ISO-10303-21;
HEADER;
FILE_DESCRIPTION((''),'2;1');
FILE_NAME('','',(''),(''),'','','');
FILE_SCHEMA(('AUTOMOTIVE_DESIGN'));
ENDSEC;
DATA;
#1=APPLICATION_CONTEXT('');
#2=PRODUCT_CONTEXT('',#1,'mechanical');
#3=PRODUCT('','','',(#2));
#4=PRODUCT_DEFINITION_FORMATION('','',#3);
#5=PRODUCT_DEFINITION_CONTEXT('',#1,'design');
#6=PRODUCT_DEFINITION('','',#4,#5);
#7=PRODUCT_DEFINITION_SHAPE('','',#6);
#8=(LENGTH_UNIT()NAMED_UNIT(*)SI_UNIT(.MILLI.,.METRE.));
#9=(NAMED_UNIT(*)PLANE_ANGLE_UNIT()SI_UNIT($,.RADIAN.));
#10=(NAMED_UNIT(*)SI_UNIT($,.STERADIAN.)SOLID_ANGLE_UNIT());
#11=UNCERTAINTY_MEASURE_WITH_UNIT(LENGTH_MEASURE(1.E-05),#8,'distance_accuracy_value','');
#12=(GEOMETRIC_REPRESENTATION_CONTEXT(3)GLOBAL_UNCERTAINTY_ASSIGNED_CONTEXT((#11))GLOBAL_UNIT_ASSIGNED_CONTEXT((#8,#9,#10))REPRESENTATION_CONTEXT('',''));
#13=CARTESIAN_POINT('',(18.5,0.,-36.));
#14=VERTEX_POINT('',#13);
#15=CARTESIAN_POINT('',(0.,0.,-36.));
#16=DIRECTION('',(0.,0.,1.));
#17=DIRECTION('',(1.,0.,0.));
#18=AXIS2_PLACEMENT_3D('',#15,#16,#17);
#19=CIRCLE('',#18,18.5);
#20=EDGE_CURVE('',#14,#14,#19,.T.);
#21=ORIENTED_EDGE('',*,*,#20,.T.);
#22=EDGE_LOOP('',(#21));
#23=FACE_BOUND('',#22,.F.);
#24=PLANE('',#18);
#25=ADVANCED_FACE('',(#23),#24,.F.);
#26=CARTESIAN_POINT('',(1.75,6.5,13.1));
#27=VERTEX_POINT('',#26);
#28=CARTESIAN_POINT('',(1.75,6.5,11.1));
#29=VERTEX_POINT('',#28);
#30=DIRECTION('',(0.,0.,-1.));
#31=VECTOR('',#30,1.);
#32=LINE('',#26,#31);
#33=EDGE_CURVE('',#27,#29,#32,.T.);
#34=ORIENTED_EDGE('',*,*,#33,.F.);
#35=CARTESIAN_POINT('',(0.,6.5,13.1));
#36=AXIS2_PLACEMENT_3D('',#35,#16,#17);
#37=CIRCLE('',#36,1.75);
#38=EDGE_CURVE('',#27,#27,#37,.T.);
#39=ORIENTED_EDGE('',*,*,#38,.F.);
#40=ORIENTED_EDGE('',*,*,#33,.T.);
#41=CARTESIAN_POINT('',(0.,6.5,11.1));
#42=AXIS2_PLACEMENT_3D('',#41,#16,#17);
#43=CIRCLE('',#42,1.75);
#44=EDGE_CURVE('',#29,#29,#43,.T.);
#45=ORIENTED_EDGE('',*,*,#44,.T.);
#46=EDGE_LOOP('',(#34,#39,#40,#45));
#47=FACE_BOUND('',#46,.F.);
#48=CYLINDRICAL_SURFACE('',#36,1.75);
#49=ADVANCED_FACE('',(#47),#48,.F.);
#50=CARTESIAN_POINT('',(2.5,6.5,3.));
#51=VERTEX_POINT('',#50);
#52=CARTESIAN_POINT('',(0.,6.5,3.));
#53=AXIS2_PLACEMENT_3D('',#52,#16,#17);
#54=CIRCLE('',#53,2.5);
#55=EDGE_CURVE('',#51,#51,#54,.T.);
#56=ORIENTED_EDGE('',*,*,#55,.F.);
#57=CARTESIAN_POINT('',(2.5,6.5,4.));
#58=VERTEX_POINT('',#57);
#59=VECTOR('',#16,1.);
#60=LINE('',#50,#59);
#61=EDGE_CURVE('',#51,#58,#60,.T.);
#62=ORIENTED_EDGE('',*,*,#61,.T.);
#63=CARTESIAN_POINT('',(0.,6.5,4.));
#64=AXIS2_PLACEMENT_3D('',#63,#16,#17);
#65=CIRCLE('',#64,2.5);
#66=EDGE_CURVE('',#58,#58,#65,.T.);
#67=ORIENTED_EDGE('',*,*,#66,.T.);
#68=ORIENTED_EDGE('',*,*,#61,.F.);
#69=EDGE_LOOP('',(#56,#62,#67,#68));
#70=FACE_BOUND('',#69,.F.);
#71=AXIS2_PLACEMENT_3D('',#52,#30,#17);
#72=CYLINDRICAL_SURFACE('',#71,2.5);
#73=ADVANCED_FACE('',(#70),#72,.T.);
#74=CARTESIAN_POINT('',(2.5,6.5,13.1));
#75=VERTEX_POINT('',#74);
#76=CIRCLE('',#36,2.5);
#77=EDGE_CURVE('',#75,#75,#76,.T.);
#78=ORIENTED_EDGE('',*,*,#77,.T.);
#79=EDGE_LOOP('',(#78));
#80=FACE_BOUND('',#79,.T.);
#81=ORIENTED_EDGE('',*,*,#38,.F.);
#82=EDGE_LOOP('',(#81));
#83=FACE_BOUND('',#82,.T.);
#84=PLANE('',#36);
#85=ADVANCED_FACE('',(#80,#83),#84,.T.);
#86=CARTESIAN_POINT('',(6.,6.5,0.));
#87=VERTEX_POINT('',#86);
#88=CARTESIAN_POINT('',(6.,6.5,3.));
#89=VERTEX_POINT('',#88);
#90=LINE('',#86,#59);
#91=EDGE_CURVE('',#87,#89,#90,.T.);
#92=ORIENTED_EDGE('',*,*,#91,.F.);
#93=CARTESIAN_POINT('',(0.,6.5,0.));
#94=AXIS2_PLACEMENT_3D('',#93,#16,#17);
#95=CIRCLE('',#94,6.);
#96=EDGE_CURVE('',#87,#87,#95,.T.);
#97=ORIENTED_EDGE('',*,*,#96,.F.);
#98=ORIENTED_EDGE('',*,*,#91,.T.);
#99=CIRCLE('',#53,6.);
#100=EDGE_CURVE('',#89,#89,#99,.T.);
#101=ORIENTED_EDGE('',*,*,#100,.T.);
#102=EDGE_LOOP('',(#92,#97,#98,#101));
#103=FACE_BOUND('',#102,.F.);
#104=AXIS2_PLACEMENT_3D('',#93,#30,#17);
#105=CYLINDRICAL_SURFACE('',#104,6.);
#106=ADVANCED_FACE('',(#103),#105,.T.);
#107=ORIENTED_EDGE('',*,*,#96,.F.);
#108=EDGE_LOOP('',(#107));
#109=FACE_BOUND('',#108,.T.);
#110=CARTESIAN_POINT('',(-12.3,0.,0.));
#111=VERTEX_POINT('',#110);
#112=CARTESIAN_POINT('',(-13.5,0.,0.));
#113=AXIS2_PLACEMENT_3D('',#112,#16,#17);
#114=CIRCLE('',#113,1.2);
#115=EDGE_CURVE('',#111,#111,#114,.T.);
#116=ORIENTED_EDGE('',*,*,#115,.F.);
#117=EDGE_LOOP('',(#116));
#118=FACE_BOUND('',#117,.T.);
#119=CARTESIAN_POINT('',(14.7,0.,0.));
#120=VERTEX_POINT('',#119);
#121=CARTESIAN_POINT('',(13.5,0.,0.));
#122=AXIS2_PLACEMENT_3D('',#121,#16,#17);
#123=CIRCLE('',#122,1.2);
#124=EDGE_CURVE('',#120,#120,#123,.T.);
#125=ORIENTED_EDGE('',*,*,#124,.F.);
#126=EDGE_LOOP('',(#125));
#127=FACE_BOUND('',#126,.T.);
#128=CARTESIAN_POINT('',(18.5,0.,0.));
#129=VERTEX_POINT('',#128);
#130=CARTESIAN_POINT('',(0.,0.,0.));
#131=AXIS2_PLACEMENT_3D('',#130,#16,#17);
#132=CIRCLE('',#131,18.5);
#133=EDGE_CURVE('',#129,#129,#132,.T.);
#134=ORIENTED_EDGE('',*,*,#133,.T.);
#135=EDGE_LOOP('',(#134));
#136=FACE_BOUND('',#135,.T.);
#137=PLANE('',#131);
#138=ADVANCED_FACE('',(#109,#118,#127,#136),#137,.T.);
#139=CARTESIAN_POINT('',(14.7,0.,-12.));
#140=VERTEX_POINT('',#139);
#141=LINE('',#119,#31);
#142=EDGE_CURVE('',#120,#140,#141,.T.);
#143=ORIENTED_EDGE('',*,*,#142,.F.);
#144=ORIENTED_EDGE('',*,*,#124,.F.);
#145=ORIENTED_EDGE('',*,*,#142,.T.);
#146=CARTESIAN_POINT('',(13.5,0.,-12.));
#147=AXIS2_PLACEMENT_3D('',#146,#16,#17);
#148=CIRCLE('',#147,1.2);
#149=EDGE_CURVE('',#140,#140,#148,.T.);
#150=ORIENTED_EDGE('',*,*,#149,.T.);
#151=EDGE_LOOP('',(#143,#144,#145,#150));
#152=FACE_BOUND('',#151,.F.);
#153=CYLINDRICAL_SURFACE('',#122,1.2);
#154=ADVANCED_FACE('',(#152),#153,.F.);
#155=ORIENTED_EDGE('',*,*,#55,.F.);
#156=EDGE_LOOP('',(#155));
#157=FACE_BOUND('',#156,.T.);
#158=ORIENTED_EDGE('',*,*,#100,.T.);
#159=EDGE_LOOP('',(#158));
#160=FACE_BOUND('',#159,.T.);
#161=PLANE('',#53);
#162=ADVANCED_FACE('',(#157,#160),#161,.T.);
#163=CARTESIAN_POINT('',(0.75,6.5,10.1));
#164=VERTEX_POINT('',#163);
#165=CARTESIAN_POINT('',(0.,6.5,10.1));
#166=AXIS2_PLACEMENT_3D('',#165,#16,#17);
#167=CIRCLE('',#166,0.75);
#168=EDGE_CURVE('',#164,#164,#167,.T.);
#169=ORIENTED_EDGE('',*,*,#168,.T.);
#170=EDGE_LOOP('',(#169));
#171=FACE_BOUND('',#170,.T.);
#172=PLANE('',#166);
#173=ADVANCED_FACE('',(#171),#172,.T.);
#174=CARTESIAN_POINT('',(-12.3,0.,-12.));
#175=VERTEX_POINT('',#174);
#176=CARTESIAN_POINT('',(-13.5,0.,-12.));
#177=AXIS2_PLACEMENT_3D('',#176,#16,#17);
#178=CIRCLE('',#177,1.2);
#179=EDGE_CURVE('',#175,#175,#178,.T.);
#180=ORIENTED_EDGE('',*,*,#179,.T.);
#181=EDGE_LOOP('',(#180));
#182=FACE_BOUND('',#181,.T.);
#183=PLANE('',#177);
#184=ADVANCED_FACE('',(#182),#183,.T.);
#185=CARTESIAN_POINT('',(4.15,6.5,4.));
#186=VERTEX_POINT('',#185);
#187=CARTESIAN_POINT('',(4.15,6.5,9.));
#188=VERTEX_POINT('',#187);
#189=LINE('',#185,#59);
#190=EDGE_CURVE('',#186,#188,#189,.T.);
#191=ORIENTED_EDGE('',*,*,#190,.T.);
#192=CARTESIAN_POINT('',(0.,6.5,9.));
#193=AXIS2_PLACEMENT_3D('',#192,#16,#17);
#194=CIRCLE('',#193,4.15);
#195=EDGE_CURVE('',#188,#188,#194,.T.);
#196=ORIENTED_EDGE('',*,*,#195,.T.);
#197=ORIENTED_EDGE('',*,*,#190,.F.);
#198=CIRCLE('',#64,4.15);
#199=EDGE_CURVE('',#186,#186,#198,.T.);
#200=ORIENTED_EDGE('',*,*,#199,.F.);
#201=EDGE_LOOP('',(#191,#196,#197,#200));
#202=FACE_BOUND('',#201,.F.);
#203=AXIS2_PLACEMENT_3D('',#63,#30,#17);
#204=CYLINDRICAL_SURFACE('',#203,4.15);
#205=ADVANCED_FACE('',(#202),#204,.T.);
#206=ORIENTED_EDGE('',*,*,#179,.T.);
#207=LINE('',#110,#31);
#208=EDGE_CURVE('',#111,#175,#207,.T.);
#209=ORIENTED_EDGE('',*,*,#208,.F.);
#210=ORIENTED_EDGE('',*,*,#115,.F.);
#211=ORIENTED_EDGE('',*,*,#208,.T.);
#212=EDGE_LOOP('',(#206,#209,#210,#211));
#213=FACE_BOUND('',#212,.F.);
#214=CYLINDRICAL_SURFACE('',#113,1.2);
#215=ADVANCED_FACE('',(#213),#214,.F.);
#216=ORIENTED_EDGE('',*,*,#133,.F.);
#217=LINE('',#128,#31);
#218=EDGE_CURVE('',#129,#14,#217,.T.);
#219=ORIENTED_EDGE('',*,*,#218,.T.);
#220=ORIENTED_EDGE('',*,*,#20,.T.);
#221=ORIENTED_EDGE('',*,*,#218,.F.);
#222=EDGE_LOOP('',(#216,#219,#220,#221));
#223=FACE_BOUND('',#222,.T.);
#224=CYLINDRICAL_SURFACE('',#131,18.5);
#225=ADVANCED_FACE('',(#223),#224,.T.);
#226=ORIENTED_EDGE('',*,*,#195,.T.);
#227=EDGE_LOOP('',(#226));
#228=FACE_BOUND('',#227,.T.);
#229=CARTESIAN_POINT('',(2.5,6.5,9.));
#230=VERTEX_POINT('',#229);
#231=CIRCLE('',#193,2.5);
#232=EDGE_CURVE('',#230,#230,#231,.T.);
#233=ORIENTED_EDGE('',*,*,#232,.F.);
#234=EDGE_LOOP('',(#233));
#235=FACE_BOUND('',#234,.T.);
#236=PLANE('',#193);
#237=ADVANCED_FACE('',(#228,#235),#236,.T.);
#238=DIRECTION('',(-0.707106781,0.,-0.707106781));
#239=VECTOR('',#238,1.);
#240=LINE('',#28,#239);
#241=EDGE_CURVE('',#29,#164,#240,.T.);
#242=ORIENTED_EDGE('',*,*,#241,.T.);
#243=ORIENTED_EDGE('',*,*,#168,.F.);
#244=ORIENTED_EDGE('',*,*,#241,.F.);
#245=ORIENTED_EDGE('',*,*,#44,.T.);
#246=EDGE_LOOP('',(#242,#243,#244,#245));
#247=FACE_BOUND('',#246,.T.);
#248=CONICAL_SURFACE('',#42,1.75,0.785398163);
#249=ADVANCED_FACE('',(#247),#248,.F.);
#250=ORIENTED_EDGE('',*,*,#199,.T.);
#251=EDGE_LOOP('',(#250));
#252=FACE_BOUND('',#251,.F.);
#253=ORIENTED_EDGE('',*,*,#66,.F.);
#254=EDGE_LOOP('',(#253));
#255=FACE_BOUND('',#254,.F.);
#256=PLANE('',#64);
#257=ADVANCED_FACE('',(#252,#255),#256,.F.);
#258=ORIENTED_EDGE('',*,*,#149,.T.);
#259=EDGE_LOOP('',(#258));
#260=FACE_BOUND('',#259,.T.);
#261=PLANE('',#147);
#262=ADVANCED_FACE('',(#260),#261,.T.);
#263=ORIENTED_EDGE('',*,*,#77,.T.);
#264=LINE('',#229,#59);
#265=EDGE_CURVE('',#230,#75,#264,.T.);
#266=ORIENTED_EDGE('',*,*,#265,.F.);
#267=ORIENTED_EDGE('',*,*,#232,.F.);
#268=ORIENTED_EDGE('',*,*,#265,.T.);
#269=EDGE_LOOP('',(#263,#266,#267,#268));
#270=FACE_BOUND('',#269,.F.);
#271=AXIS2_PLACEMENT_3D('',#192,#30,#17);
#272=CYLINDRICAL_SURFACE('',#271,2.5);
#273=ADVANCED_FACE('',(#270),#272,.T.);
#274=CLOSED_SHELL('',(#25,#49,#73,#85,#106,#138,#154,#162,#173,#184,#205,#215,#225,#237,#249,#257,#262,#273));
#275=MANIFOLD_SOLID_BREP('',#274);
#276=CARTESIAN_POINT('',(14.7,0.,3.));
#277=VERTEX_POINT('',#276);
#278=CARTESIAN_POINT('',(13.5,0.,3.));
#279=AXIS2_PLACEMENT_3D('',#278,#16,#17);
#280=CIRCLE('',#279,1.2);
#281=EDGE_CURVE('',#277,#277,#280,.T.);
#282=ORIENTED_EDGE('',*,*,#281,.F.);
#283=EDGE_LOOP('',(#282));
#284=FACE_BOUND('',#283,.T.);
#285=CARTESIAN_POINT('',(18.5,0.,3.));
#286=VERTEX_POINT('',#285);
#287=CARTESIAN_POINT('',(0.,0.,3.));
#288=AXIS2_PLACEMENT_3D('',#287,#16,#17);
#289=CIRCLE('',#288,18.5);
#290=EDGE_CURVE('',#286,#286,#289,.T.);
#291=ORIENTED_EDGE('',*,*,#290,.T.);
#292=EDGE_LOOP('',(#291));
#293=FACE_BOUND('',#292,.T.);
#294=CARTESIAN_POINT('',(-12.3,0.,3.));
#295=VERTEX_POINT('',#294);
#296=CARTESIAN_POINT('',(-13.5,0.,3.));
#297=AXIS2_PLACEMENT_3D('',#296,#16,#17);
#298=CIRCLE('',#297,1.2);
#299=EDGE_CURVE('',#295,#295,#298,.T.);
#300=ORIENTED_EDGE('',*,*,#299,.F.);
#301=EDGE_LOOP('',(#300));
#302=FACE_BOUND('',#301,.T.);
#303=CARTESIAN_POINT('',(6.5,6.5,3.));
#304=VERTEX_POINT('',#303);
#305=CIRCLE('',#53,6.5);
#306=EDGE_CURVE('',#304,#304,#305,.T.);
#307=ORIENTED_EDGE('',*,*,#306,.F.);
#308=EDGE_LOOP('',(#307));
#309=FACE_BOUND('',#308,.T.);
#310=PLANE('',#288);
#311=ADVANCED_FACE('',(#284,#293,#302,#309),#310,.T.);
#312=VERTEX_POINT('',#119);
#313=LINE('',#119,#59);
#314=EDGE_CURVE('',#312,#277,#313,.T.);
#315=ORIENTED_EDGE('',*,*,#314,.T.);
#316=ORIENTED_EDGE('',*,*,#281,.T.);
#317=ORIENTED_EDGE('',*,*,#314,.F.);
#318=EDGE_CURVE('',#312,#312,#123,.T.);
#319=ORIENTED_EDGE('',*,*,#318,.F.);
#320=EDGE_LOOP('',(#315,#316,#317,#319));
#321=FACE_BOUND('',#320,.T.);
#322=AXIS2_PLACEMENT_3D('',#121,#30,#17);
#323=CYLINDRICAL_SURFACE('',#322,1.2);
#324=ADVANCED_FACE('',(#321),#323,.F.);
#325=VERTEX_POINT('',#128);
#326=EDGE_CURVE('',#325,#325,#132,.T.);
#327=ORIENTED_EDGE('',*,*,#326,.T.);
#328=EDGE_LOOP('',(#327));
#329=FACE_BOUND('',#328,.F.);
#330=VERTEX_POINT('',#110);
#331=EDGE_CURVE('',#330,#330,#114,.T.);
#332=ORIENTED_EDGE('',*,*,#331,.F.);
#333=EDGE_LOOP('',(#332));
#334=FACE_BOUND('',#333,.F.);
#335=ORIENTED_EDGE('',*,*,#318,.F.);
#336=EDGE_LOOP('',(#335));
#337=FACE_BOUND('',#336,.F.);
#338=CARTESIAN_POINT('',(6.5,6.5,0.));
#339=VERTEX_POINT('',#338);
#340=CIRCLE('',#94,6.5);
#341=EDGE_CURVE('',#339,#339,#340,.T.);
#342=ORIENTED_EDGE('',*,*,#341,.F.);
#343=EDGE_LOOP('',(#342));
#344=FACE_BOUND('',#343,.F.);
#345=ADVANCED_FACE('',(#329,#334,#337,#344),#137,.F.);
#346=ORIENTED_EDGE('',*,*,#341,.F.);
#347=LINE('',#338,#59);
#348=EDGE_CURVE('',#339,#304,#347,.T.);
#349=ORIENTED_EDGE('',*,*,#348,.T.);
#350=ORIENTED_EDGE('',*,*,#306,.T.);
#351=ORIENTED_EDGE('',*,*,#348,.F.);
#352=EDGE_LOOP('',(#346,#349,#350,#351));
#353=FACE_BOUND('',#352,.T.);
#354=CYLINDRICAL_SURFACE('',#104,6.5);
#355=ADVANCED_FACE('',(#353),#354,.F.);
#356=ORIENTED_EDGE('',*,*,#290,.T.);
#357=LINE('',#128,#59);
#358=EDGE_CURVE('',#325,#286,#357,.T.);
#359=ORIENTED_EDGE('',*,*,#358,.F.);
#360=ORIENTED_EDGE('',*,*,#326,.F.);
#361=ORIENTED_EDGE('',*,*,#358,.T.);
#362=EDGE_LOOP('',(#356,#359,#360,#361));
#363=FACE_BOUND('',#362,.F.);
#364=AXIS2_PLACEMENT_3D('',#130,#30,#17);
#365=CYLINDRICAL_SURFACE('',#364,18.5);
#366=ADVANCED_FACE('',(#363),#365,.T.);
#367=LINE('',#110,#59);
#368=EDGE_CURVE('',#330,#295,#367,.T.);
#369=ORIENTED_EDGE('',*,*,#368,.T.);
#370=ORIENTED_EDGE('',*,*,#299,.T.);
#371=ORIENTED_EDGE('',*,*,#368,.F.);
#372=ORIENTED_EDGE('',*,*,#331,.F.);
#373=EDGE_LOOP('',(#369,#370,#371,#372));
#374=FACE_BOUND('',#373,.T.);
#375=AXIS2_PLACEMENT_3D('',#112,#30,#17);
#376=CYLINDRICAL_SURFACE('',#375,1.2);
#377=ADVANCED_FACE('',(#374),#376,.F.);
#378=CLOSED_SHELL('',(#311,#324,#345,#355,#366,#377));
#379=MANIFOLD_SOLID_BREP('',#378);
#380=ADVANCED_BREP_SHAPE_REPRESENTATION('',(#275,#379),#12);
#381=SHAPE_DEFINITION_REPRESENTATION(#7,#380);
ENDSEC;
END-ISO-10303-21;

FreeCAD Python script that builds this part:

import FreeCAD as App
import Part
import Sketcher
Q = App.Units.Quantity


def edges_at(feature, points):
    """Names of the edges that pass closest to the given points."""
    edges = feature.Shape.Edges
    near = lambda p: min(range(len(edges)), key=lambda i: edges[i].distToShape(Part.Vertex(*p))[0])
    return sorted({f"Edge{near(p) + 1}" for p in points})

doc = App.newDocument("Part")
body = doc.addObject("PartDesign::Body", "Body")

# Sketch on XY plane
sketch1 = body.newObject("Sketcher::SketchObject", "Sketch")
sketch1.AttachmentSupport = (doc.getObject("XY_Plane"), [""])
sketch1.MapMode = "FlatFace"
sketch1.addGeometry(Part.Circle(App.Vector(0, 0, 0), App.Vector(0, 0, 1), 18.5), False)
sketch1.addConstraint([
    Sketcher.Constraint("Coincident", 0, 3, -1, 1),
    Sketcher.Constraint("Diameter", 0, Q("37 mm")),
])
pad1 = body.newObject("PartDesign::Pad", "Pad")
pad1.Profile = sketch1
pad1.Length = 36
pad1.Reversed = True

# Sketch on XY plane
sketch2 = body.newObject("Sketcher::SketchObject", "Sketch001")
sketch2.AttachmentSupport = (doc.getObject("XY_Plane"), [""])
sketch2.MapMode = "FlatFace"
sketch2.addGeometry([
    Part.Circle(App.Vector(-13.5, 0, 0), App.Vector(0, 0, 1), 1.2),
    Part.Circle(App.Vector(13.5, 0, 0), App.Vector(0, 0, 1), 1.2),
], False)
sketch2.addConstraint([
    Sketcher.Constraint("Equal", 0, 1),
    Sketcher.Constraint("Symmetric", 0, 3, 1, 3, -1, 1),
    Sketcher.Constraint("PointOnObject", 0, 3, -1),
    Sketcher.Constraint("Diameter", 0, Q("2.4 mm")),
    Sketcher.Constraint("DistanceX", 0, 3, 1, 3, Q("27 mm")),
])
pocket1 = body.newObject("PartDesign::Pocket", "Pocket")
pocket1.Profile = sketch2
pocket1.Length = 12

# Sketch on XY plane
sketch3 = body.newObject("Sketcher::SketchObject", "Sketch002")
sketch3.AttachmentSupport = (doc.getObject("XY_Plane"), [""])
sketch3.MapMode = "FlatFace"
sketch3.addGeometry(Part.Circle(App.Vector(0, 6.5, 0), App.Vector(0, 0, 1), 6), False)
sketch3.addConstraint([
    Sketcher.Constraint("PointOnObject", 0, 3, -2),
    Sketcher.Constraint("Diameter", 0, Q("12 mm")),
    Sketcher.Constraint("DistanceY", -1, 1, 0, 3, Q("6.5 mm")),
])
pad2 = body.newObject("PartDesign::Pad", "Pad001")
pad2.Profile = sketch3
pad2.Length = 3

# Sketch on XY plane
sketch4 = body.newObject("Sketcher::SketchObject", "Sketch003")
sketch4.AttachmentSupport = (doc.getObject("XY_Plane"), [""])
sketch4.MapMode = "FlatFace"
sketch4.AttachmentOffset = App.Placement(App.Vector(0, 0, 3), App.Rotation())
sketch4.addGeometry(Part.Circle(App.Vector(0, 6.5, 0), App.Vector(0, 0, 1), 2.5), False)
sketch4.addConstraint([
    Sketcher.Constraint("PointOnObject", 0, 3, -2),
    Sketcher.Constraint("Diameter", 0, Q("5 mm")),
    Sketcher.Constraint("DistanceY", -1, 1, 0, 3, Q("6.5 mm")),
])
pad3 = body.newObject("PartDesign::Pad", "Pad002")
pad3.Profile = sketch4
pad3.Length = 1

# Sketch on XY plane
sketch5 = body.newObject("Sketcher::SketchObject", "Sketch004")
sketch5.AttachmentSupport = (doc.getObject("XY_Plane"), [""])
sketch5.MapMode = "FlatFace"
sketch5.AttachmentOffset = App.Placement(App.Vector(0, 0, 4), App.Rotation())
sketch5.addGeometry(Part.Circle(App.Vector(0, 6.5, 0), App.Vector(0, 0, 1), 4.15), False)
sketch5.addConstraint([
    Sketcher.Constraint("PointOnObject", 0, 3, -2),
    Sketcher.Constraint("Diameter", 0, Q("8.3 mm")),
    Sketcher.Constraint("DistanceY", -1, 1, 0, 3, Q("6.5 mm")),
])
pad4 = body.newObject("PartDesign::Pad", "Pad003")
pad4.Profile = sketch5
pad4.Length = 5

# Sketch on XY plane
sketch6 = body.newObject("Sketcher::SketchObject", "Sketch005")
sketch6.AttachmentSupport = (doc.getObject("XY_Plane"), [""])
sketch6.MapMode = "FlatFace"
sketch6.AttachmentOffset = App.Placement(App.Vector(0, 0, 9), App.Rotation())
sketch6.addGeometry(Part.Circle(App.Vector(0, 6.5, 0), App.Vector(0, 0, 1), 2.5), False)
sketch6.addConstraint([
    Sketcher.Constraint("PointOnObject", 0, 3, -2),
    Sketcher.Constraint("Diameter", 0, Q("5 mm")),
    Sketcher.Constraint("DistanceY", -1, 1, 0, 3, Q("6.5 mm")),
])
pad5 = body.newObject("PartDesign::Pad", "Pad004")
pad5.Profile = sketch6
pad5.Length = 4.1

# Sketch on XY plane
sketch7 = body.newObject("Sketcher::SketchObject", "Sketch006")
sketch7.AttachmentSupport = (doc.getObject("XY_Plane"), [""])
sketch7.MapMode = "FlatFace"
sketch7.AttachmentOffset = App.Placement(App.Vector(0, 0, 13.1), App.Rotation())
sketch7.addGeometry(Part.Circle(App.Vector(0, 6.5, 0), App.Vector(0, 0, 1), 1.75), False)
sketch7.addConstraint([
    Sketcher.Constraint("PointOnObject", 0, 3, -2),
    Sketcher.Constraint("Diameter", 0, Q("3.5 mm")),
    Sketcher.Constraint("DistanceY", -1, 1, 0, 3, Q("6.5 mm")),
])
pocket2 = body.newObject("PartDesign::Pocket", "Pocket001")
pocket2.Profile = sketch7
pocket2.Length = 3
doc.recompute()

chamfer = body.newObject("PartDesign::Chamfer", "Chamfer")
chamfer.Base = (pocket2, edges_at(pocket2, [(-1.75, 6.5, 10.1)]))
chamfer.Size = 1
body2 = doc.addObject("PartDesign::Body", "Body001")

# Sketch on XY plane
sketch8 = body2.newObject("Sketcher::SketchObject", "Sketch007")
sketch8.AttachmentSupport = (doc.getObject("XY_Plane001"), [""])
sketch8.MapMode = "FlatFace"
sketch8.addGeometry([
    Part.Circle(App.Vector(0, 0, 0), App.Vector(0, 0, 1), 18.5),
    Part.Circle(App.Vector(-13.5, 0, 0), App.Vector(0, 0, 1), 1.2),
    Part.Circle(App.Vector(13.5, 0, 0), App.Vector(0, 0, 1), 1.2),
    Part.Circle(App.Vector(0, 6.5, 0), App.Vector(0, 0, 1), 6.5),
], False)
sketch8.addConstraint([
    Sketcher.Constraint("Coincident", 0, 3, -1, 1),
    Sketcher.Constraint("Equal", 1, 2),
    Sketcher.Constraint("Symmetric", 1, 3, 2, 3, -1, 1),
    Sketcher.Constraint("PointOnObject", 1, 3, -1),
    Sketcher.Constraint("PointOnObject", 3, 3, -2),
    Sketcher.Constraint("Diameter", 0, Q("37 mm")),
    Sketcher.Constraint("Diameter", 3, Q("13 mm")),
    Sketcher.Constraint("Diameter", 1, Q("2.4 mm")),
    Sketcher.Constraint("DistanceX", 1, 3, 2, 3, Q("27 mm")),
    Sketcher.Constraint("DistanceY", -1, 1, 3, 3, Q("6.5 mm")),
])
pad6 = body2.newObject("PartDesign::Pad", "Pad005")
pad6.Profile = sketch8
pad6.Length = 3

doc.recompute()
